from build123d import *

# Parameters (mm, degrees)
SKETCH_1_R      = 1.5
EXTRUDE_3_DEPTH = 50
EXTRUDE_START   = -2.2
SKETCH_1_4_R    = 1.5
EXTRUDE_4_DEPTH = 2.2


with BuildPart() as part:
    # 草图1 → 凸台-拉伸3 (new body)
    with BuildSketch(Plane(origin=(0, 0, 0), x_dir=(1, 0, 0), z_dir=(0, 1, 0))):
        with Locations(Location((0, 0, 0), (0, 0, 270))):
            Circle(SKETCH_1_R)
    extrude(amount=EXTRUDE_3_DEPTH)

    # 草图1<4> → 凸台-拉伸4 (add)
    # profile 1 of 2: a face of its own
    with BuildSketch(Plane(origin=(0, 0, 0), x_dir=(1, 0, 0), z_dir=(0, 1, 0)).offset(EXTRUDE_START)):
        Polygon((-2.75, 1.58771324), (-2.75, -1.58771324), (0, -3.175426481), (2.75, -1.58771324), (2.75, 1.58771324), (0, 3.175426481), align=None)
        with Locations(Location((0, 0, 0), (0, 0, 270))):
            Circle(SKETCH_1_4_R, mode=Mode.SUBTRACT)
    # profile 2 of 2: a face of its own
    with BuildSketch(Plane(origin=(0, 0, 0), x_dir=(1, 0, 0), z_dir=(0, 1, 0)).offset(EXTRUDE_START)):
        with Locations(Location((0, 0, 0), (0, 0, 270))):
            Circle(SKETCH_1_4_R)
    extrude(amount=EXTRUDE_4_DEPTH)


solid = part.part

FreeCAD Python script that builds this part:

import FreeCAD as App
import Part
import Sketcher

V = App.Vector
Q = App.Units.Quantity


def add_polygon(sketch, points):
    """Adds a closed chain of lines whose ends are joined by coincident constraints."""
    first, n = sketch.GeometryCount, len(points)
    for a, b in zip(points, points[1:] + points[:1]):
        sketch.addGeometry(Part.LineSegment(App.Vector(*a, 0), App.Vector(*b, 0)), False)
    for i in range(n):
        sketch.addConstraint(Sketcher.Constraint("Coincident", first + i, 2, first + (i + 1) % n, 1))

doc = App.newDocument("Part")
body = doc.addObject("PartDesign::Body", "Body")

# Sketch on XZ plane
sketch1 = body.newObject("Sketcher::SketchObject", "Sketch")
sketch1.AttachmentSupport = (doc.getObject("XZ_Plane"), [""])
sketch1.MapMode = "FlatFace"
sketch1.addGeometry(Part.Circle(V(0, 0, 0), V(0, 0, 1), 1.5), False)
sketch1.addConstraint([
    Sketcher.Constraint("Coincident", 0, 3, -1, 1),
    Sketcher.Constraint("Diameter", 0, 3.0),
])
pad1 = body.newObject("PartDesign::Pad", "Pad")
pad1.Profile = sketch1
pad1.Length = 50
pad1.Reversed = True

# Sketch on XZ plane
sketch2 = body.newObject("Sketcher::SketchObject", "Sketch001")
sketch2.AttachmentSupport = (doc.getObject("XZ_Plane"), [""])
sketch2.MapMode = "FlatFace"
sketch2.AttachmentOffset = App.Placement(V(0, 0, 2.2), App.Rotation())
add_polygon(sketch2, [(-2.8, -1.6), (-2.8, 1.6), (0, 3.2), (2.8, 1.6), (2.8, -1.6), (0, -3.2)])  # lines 0-5
sketch2.addConstraint([
    Sketcher.Constraint("Vertical", 0),
    Sketcher.Constraint("Vertical", 3),
    Sketcher.Constraint("Symmetric", 0, 2, 3, 2, -1, 1),
    Sketcher.Constraint("Symmetric", 1, 2, 4, 2, -1, 1),
    Sketcher.Constraint("PointOnObject", 1, 2, -2),
    Sketcher.Constraint("Parallel", 2, 5),
    Sketcher.Constraint("Horizontal", 0, 2, 2, 2),
    Sketcher.Constraint("Angle", 1, Q("30 deg")),
    Sketcher.Constraint("DistanceX", 0, 2, 2, 2, 5.5),
    Sketcher.Constraint("DistanceY", 0, 1, 0, 2, 3.175426),
])
pad2 = body.newObject("PartDesign::Pad", "Pad001")
pad2.Profile = sketch2
pad2.Length = 2.2
pad2.Reversed = True

doc.recompute()
